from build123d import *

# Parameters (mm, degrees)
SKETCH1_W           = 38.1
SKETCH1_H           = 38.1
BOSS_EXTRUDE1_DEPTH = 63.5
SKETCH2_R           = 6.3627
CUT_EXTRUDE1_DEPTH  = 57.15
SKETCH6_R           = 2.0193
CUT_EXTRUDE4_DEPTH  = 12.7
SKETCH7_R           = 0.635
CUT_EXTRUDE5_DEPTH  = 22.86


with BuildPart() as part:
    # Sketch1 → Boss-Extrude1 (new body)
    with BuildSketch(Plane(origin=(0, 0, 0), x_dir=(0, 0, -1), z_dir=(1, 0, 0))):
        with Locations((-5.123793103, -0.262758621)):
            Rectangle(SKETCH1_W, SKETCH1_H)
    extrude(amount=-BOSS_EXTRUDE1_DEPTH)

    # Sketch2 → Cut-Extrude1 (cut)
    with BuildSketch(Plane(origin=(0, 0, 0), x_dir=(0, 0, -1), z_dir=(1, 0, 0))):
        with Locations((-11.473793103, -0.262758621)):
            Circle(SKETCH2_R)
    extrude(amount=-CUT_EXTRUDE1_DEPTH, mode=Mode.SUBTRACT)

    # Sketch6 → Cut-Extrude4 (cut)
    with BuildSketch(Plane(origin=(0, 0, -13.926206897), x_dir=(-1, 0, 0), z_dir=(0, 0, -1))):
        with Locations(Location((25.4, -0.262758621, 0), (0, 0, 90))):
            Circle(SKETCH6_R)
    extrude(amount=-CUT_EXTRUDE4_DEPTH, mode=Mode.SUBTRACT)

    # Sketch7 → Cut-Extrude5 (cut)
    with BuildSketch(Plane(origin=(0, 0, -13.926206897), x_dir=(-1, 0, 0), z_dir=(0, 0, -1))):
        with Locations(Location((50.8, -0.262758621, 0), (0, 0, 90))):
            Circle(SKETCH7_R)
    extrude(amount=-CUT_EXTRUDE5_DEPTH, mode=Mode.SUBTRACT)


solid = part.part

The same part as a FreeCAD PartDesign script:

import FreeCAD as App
import Part
import Sketcher
from FreeCAD import Vector
Q = App.Units.Quantity

doc = App.newDocument("Part")
body = doc.addObject("PartDesign::Body", "Body")

sketch1 = body.newObject("Sketcher::SketchObject", "Sketch")
sketch1.AttachmentSupport = (doc.getObject("YZ_Plane"), [""])
sketch1.MapMode = "FlatFace"
sketch1.addGeometry([
    Part.LineSegment(Vector(19, 24, 0), Vector(-19, 24, 0)),
    Part.LineSegment(Vector(-19, 24, 0), Vector(-19, -14, 0)),
    Part.LineSegment(Vector(-19, -14, 0), Vector(19, -14, 0)),
    Part.LineSegment(Vector(19, -14, 0), Vector(19, 24, 0)),
], False)
sketch1.addConstraint([
    Sketcher.Constraint("Coincident", 0, 2, 1, 1),
    Sketcher.Constraint("Coincident", 1, 2, 2, 1),
    Sketcher.Constraint("Coincident", 2, 2, 3, 1),
    Sketcher.Constraint("Coincident", 3, 2, 0, 1),
    Sketcher.Constraint("Horizontal", 0),
    Sketcher.Constraint("Vertical", 1),
    Sketcher.Constraint("Horizontal", 2),
    Sketcher.Constraint("Vertical", 3),
    Sketcher.Constraint("Equal", 2, 1),
    Sketcher.Constraint("DistanceX", 0, 2, 0, 1, Q("1.5 in")),
    Sketcher.Constraint("DistanceX", 0, 2, -1, 1, Q("19.312759 mm")),
    Sketcher.Constraint("DistanceY", -1, 1, 0, 2, Q("24.173793 mm")),
])
pad1 = body.newObject("PartDesign::Pad", "Pad")
pad1.Profile = sketch1
pad1.Length = Q("2.5 in")
pad1.Reversed = True

sketch2 = body.newObject("Sketcher::SketchObject", "Sketch001")
sketch2.AttachmentSupport = (doc.getObject("YZ_Plane"), [""])
sketch2.MapMode = "FlatFace"
sketch2.addGeometry(Part.Circle(Vector(0, 11, 0), Vector(0, 0, 1), 6), False)
sketch2.addConstraint([
    Sketcher.Constraint("Diameter", 0, Q("0.501 in")),
    Sketcher.Constraint("DistanceX", 0, 3, -1, 1, Q("0.262759 mm")),
    Sketcher.Constraint("DistanceY", -1, 1, 0, 3, Q("11.473793 mm")),
])
pocket1 = body.newObject("PartDesign::Pocket", "Pocket")
pocket1.Profile = sketch2
pocket1.Length = Q("2.25 in")

sketch3 = body.newObject("Sketcher::SketchObject", "Sketch002")
sketch3.AttachmentSupport = (doc.getObject("XY_Plane"), [""])
sketch3.MapMode = "FlatFace"
sketch3.AttachmentOffset = App.Placement(Vector(0, 0, -13.926207), App.Rotation())
sketch3.addGeometry(Part.Circle(Vector(-25.4, -0.3, 0), Vector(0, 0, 1), 2), False)
sketch3.addConstraint([
    Sketcher.Constraint("Diameter", 0, Q("0.159 in")),
    Sketcher.Constraint("DistanceX", 0, 3, -1, 1, Q("1 in")),
    Sketcher.Constraint("DistanceY", 0, 3, -1, 1, Q("0.262759 mm")),
])
pocket2 = body.newObject("PartDesign::Pocket", "Pocket001")
pocket2.Profile = sketch3
pocket2.Length = Q("0.5 in")
pocket2.Reversed = True

sketch4 = body.newObject("Sketcher::SketchObject", "Sketch003")
sketch4.AttachmentSupport = (doc.getObject("XY_Plane"), [""])
sketch4.MapMode = "FlatFace"
sketch4.AttachmentOffset = App.Placement(Vector(0, 0, -13.926207), App.Rotation())
sketch4.addGeometry(Part.Circle(Vector(-50.8, -0.3, 0), Vector(0, 0, 1), 0.6), False)
sketch4.addConstraint([
    Sketcher.Constraint("Diameter", 0, Q("0.05 in")),
    Sketcher.Constraint("DistanceX", 0, 3, -1, 1, Q("2 in")),
    Sketcher.Constraint("DistanceY", 0, 3, -1, 1, Q("0.262759 mm")),
])
pocket3 = body.newObject("PartDesign::Pocket", "Pocket002")
pocket3.Profile = sketch4
pocket3.Length = Q("0.9 in")
pocket3.Reversed = True

doc.recompute()
